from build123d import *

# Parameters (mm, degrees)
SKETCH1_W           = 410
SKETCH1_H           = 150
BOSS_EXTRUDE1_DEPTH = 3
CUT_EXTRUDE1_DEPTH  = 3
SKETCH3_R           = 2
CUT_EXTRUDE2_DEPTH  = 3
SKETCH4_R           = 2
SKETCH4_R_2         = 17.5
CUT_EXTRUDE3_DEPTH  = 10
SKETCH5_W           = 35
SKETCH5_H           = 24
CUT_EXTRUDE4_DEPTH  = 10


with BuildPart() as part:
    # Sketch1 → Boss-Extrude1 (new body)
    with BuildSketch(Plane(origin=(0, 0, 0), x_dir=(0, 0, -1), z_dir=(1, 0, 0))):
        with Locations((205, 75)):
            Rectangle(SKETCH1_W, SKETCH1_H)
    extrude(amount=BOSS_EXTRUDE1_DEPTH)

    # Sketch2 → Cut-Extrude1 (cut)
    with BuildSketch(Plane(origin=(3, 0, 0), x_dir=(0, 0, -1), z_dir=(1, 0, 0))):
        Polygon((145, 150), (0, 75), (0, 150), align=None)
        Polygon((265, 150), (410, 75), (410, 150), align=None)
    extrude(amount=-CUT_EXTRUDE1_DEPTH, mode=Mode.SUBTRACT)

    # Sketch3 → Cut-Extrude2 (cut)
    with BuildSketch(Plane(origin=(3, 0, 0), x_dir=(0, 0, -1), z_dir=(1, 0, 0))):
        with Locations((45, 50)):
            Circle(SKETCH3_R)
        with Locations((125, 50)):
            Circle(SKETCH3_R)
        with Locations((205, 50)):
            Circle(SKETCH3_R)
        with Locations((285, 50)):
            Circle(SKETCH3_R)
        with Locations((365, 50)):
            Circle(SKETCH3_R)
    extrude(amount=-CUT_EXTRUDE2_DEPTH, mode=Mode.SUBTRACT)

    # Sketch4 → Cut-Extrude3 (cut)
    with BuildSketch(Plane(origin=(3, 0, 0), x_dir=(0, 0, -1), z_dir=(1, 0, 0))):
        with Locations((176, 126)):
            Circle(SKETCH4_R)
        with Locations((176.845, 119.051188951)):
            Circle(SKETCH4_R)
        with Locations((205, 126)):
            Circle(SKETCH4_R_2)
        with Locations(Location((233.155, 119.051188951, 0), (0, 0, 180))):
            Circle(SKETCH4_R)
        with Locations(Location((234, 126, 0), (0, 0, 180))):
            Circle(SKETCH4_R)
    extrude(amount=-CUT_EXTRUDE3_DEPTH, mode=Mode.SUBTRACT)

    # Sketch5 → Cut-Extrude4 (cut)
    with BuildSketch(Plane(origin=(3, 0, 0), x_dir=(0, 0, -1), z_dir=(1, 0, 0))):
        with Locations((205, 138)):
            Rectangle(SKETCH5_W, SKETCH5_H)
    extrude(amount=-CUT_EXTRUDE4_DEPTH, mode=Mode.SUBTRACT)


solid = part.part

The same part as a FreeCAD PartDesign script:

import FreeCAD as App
import Part
import Sketcher
from FreeCAD import Vector


def add_polygon(sketch, points):
    """Adds a closed chain of lines whose ends are joined by coincident constraints."""
    first, n = sketch.GeometryCount, len(points)
    for a, b in zip(points, points[1:] + points[:1]):
        sketch.addGeometry(Part.LineSegment(App.Vector(*a, 0), App.Vector(*b, 0)), False)
    for i in range(n):
        sketch.addConstraint(Sketcher.Constraint("Coincident", first + i, 2, first + (i + 1) % n, 1))

doc = App.newDocument("Part")
body = doc.addObject("PartDesign::Body", "Body")

# Sketch on YZ plane
sketch1 = body.newObject("Sketcher::SketchObject", "Sketch")
sketch1.AttachmentSupport = (doc.getObject("YZ_Plane"), [""])
sketch1.MapMode = "FlatFace"
add_polygon(sketch1, [(150, 0), (0, 0), (0, -410), (150, -410)])  # lines 0-3
sketch1.addConstraint(Sketcher.Constraint("Horizontal", 0))
sketch1.addConstraint(Sketcher.Constraint("Vertical", 1))
sketch1.addConstraint(Sketcher.Constraint("Horizontal", 2))
sketch1.addConstraint(Sketcher.Constraint("Vertical", 3))
sketch1.addConstraint(Sketcher.Constraint("Coincident", 0, 2, -1, 1))
sketch1.addConstraint(Sketcher.Constraint("DistanceX", 0, 2, 0, 1, 150.0))
sketch1.addConstraint(Sketcher.Constraint("DistanceY", 1, 2, 1, 1, 410.0))
pad1 = body.newObject("PartDesign::Pad", "Pad")
pad1.Profile = sketch1
pad1.Length = 3

# Sketch on YZ plane
sketch2 = body.newObject("Sketcher::SketchObject", "Sketch001")
sketch2.AttachmentSupport = (doc.getObject("YZ_Plane"), [""])
sketch2.MapMode = "FlatFace"
sketch2.AttachmentOffset = App.Placement(Vector(0, 0, 3), App.Rotation())
add_polygon(sketch2, [(75, 0), (150, -145), (150, 0)])  # lines 0-2
add_polygon(sketch2, [(150, -265), (75, -410), (150, -410)])  # lines 3-5
sketch2.addConstraint(Sketcher.Constraint("Vertical", 1))
sketch2.addConstraint(Sketcher.Constraint("Horizontal", 2))
sketch2.addConstraint(Sketcher.Constraint("Horizontal", 4))
sketch2.addConstraint(Sketcher.Constraint("Vertical", 5))
sketch2.addConstraint(Sketcher.Constraint("PointOnObject", 1, 2, -1))
sketch2.addConstraint(Sketcher.Constraint("Vertical", 2, 2, 3, 2))
sketch2.addConstraint(Sketcher.Constraint("Vertical", 1, 2, 4, 2))
sketch2.addConstraint(Sketcher.Constraint("Equal", 1, 5))
sketch2.addConstraint(Sketcher.Constraint("DistanceX", 2, 2, 2, 1, 75.0))
sketch2.addConstraint(Sketcher.Constraint("DistanceY", 1, 1, 1, 2, 145.0))
sketch2.addConstraint(Sketcher.Constraint("DistanceX", -1, 1, 0, 2, 150.0))
sketch2.addConstraint(Sketcher.Constraint("DistanceY", 3, 2, -1, 1, 410.0))
pocket1 = body.newObject("PartDesign::Pocket", "Pocket")
pocket1.Profile = sketch2
pocket1.Length = 3

# Sketch on YZ plane
sketch3 = body.newObject("Sketcher::SketchObject", "Sketch002")
sketch3.AttachmentSupport = (doc.getObject("YZ_Plane"), [""])
sketch3.MapMode = "FlatFace"
sketch3.AttachmentOffset = App.Placement(Vector(0, 0, 3), App.Rotation())
sketch3.addGeometry(Part.Circle(Vector(50, -45, 0), Vector(0, 0, 1), 2), False)
sketch3.addGeometry(Part.Circle(Vector(50, -125, 0), Vector(0, 0, 1), 2), False)
sketch3.addGeometry(Part.Circle(Vector(50, -205, 0), Vector(0, 0, 1), 2), False)
sketch3.addGeometry(Part.Circle(Vector(50, -285, 0), Vector(0, 0, 1), 2), False)
sketch3.addGeometry(Part.Circle(Vector(50, -365, 0), Vector(0, 0, 1), 2), False)
sketch3.addConstraint(Sketcher.Constraint("Equal", 0, 1))
sketch3.addConstraint(Sketcher.Constraint("Equal", 1, 2))
sketch3.addConstraint(Sketcher.Constraint("Equal", 2, 3))
sketch3.addConstraint(Sketcher.Constraint("Equal", 3, 4))
sketch3.addConstraint(Sketcher.Constraint("Vertical", 0, 3, 1, 3))
sketch3.addConstraint(Sketcher.Constraint("Vertical", 1, 3, 2, 3))
sketch3.addConstraint(Sketcher.Constraint("Vertical", 2, 3, 3, 3))
sketch3.addConstraint(Sketcher.Constraint("Vertical", 3, 3, 4, 3))
sketch3.addConstraint(Sketcher.Constraint("Diameter", 0, 4.0))
sketch3.addConstraint(Sketcher.Constraint("DistanceX", -1, 1, 0, 3, 50.0))
sketch3.addConstraint(Sketcher.Constraint("DistanceY", 0, 3, -1, 1, 45.0))
sketch3.addConstraint(Sketcher.Constraint("DistanceY", 1, 3, -1, 1, 125.0))
sketch3.addConstraint(Sketcher.Constraint("DistanceY", 2, 3, -1, 1, 205.0))
sketch3.addConstraint(Sketcher.Constraint("DistanceY", 3, 3, -1, 1, 285.0))
sketch3.addConstraint(Sketcher.Constraint("DistanceY", 4, 3, -1, 1, 365.0))
pocket2 = body.newObject("PartDesign::Pocket", "Pocket001")
pocket2.Profile = sketch3
pocket2.Length = 3

# Sketch on YZ plane
sketch4 = body.newObject("Sketcher::SketchObject", "Sketch003")
sketch4.AttachmentSupport = (doc.getObject("YZ_Plane"), [""])
sketch4.MapMode = "FlatFace"
sketch4.AttachmentOffset = App.Placement(Vector(0, 0, 3), App.Rotation())
sketch4.addGeometry(Part.Circle(Vector(126, -176, 0), Vector(0, 0, 1), 2), False)
sketch4.addGeometry(Part.Circle(Vector(119.1, -176.8, 0), Vector(0, 0, 1), 2), False)
sketch4.addGeometry(Part.Circle(Vector(126, -205, 0), Vector(0, 0, 1), 17.5), False)
sketch4.addGeometry(Part.Circle(Vector(119.1, -233.2, 0), Vector(0, 0, 1), 2), False)
sketch4.addGeometry(Part.Circle(Vector(126, -234, 0), Vector(0, 0, 1), 2), False)
sketch4.addConstraint(Sketcher.Constraint("Equal", 0, 1))
sketch4.addConstraint(Sketcher.Constraint("Equal", 1, 3))
sketch4.addConstraint(Sketcher.Constraint("Equal", 3, 4))
sketch4.addConstraint(Sketcher.Constraint("Vertical", 0, 3, 2, 3))
sketch4.addConstraint(Sketcher.Constraint("Vertical", 1, 3, 3, 3))
sketch4.addConstraint(Sketcher.Constraint("Vertical", 2, 3, 4, 3))
sketch4.addConstraint(Sketcher.Constraint("Diameter", 0, 4.0))
sketch4.addConstraint(Sketcher.Constraint("Diameter", 2, 35.0))
sketch4.addConstraint(Sketcher.Constraint("DistanceX", -1, 1, 0, 3, 126.0))
sketch4.addConstraint(Sketcher.Constraint("DistanceY", 0, 3, -1, 1, 176.0))
sketch4.addConstraint(Sketcher.Constraint("DistanceY", 2, 3, -1, 1, 205.0))
sketch4.addConstraint(Sketcher.Constraint("DistanceY", 4, 3, -1, 1, 234.0))
sketch4.addConstraint(Sketcher.Constraint("DistanceY", 3, 3, 1, 3, 56.31))
sketch4.addConstraint(Sketcher.Constraint("DistanceY", 1, 3, -1, 1, 176.845))
sketch4.addConstraint(Sketcher.Constraint("DistanceX", -1, 1, 1, 3, 119.051189))
pocket3 = body.newObject("PartDesign::Pocket", "Pocket002")
pocket3.Profile = sketch4
pocket3.Length = 10

# Sketch on YZ plane
sketch5 = body.newObject("Sketcher::SketchObject", "Sketch004")
sketch5.AttachmentSupport = (doc.getObject("YZ_Plane"), [""])
sketch5.MapMode = "FlatFace"
sketch5.AttachmentOffset = App.Placement(Vector(0, 0, 3), App.Rotation())
add_polygon(sketch5, [(150, -188), (126, -188), (126, -222), (150, -222)])  # lines 0-3
sketch5.addConstraint(Sketcher.Constraint("Horizontal", 0))
sketch5.addConstraint(Sketcher.Constraint("Vertical", 1))
sketch5.addConstraint(Sketcher.Constraint("Horizontal", 2))
sketch5.addConstraint(Sketcher.Constraint("Vertical", 3))
sketch5.addConstraint(Sketcher.Constraint("DistanceX", 0, 2, 0, 1, 24.0))
sketch5.addConstraint(Sketcher.Constraint("DistanceY", 1, 2, 1, 1, 35.0))
sketch5.addConstraint(Sketcher.Constraint("DistanceX", -1, 1, 0, 2, 126.0))
sketch5.addConstraint(Sketcher.Constraint("DistanceY", 0, 2, -1, 1, 187.5))
pocket4 = body.newObject("PartDesign::Pocket", "Pocket003")
pocket4.Profile = sketch5
pocket4.Length = 10

doc.recompute()
